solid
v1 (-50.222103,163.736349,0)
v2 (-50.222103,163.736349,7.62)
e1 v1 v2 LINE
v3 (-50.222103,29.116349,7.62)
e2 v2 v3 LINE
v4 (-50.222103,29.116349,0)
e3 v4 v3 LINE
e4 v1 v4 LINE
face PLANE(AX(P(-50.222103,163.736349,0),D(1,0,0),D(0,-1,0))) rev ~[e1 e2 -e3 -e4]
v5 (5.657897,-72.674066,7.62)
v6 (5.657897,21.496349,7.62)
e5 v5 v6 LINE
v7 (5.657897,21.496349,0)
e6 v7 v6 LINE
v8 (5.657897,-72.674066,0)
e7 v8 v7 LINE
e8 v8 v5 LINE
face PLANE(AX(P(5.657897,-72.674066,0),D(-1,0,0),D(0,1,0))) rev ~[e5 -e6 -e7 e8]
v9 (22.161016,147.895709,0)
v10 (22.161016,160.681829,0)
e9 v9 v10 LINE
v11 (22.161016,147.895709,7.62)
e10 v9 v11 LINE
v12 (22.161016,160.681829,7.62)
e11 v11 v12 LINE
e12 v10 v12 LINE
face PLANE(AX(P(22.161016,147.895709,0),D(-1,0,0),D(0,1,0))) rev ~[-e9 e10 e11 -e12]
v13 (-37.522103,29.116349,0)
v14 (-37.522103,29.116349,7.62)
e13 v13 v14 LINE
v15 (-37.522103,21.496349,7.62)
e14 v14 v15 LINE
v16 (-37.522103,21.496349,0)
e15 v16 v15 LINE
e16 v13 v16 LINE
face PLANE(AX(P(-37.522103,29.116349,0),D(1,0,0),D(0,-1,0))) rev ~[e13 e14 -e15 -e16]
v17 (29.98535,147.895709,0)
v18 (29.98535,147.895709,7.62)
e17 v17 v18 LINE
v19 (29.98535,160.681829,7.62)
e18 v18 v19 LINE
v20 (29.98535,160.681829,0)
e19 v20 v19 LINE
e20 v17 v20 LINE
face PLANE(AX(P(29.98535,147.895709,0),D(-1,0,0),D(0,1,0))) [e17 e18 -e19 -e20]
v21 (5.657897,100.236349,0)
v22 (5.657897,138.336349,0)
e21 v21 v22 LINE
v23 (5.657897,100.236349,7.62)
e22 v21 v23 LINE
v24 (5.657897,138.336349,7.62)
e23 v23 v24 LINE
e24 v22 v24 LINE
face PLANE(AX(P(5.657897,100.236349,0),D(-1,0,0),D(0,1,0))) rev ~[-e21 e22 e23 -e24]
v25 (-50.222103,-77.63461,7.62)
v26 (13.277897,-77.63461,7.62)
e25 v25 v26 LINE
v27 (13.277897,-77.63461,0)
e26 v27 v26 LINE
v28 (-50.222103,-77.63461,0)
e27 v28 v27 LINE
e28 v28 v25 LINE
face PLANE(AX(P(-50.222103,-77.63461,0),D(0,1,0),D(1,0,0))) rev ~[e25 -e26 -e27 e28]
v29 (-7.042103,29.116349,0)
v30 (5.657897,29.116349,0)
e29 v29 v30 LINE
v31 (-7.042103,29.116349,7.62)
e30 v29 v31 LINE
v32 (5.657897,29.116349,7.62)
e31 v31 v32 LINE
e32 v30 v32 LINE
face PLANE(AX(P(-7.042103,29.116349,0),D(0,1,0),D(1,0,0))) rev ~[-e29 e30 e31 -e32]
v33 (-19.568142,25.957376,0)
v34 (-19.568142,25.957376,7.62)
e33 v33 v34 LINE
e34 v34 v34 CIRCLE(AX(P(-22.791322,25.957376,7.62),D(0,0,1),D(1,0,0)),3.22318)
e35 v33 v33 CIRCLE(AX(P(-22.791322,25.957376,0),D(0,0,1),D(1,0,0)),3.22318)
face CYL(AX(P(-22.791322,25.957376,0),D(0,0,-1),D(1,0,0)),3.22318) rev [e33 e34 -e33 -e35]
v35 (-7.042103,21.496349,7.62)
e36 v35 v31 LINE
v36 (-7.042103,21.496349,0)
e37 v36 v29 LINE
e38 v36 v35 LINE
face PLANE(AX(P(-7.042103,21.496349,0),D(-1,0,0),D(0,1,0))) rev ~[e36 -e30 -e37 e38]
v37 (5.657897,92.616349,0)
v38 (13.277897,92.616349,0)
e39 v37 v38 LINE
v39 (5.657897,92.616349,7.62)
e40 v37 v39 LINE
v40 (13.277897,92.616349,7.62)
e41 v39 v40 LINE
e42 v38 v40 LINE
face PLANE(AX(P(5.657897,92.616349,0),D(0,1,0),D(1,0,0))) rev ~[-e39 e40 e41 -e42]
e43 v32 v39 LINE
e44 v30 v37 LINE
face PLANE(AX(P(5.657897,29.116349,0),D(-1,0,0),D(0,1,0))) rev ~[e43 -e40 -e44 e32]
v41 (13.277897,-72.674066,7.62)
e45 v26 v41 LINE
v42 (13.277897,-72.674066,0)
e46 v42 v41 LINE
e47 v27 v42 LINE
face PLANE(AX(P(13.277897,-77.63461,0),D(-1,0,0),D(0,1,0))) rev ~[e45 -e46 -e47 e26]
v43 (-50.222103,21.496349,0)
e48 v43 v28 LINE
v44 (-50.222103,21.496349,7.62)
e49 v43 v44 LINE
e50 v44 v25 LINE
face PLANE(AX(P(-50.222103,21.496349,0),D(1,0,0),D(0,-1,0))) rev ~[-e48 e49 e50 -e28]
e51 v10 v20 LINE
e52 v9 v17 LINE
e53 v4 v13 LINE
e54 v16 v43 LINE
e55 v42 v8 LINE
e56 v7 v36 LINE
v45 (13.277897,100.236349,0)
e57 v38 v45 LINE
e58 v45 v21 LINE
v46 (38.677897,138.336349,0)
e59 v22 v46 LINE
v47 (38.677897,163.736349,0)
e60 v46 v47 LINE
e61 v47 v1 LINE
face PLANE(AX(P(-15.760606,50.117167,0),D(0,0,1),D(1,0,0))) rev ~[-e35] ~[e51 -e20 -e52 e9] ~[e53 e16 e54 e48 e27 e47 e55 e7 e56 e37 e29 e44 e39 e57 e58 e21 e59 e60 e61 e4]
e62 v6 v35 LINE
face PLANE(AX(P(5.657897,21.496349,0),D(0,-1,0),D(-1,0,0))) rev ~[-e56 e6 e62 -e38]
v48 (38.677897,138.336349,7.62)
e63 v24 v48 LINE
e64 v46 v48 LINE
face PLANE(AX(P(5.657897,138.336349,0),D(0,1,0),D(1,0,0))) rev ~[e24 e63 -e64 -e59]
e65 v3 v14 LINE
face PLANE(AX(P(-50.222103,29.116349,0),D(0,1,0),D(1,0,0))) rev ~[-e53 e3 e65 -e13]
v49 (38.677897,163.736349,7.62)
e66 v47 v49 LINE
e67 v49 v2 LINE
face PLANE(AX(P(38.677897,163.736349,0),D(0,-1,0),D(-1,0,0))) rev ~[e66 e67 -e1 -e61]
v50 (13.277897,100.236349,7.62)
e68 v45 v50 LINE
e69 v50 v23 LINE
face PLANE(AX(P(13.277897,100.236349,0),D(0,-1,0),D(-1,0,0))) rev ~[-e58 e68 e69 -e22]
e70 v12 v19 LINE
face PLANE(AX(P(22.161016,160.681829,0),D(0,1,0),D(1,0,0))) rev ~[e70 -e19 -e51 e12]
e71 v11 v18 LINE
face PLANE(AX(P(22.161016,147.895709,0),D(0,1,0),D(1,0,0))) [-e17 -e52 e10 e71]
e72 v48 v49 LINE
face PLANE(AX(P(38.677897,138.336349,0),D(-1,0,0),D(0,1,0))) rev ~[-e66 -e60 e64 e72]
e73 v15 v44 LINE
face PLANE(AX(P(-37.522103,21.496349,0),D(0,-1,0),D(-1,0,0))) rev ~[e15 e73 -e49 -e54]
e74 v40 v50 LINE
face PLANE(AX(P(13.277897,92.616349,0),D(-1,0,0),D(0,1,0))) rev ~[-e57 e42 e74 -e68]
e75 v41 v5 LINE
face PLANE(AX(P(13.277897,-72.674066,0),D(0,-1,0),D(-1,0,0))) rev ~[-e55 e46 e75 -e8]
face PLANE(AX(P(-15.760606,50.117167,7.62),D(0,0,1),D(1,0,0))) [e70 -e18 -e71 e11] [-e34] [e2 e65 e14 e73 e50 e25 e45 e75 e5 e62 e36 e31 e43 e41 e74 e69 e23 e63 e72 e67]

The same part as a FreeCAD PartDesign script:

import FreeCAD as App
import Part
import Sketcher
from FreeCAD import Vector
Q = App.Units.Quantity

doc = App.newDocument("Part")
params = doc.addObject("Spreadsheet::Sheet", "Params")
for row, (alias, value) in enumerate([
    ("sketch1_height", "1 in"),
    ("sketch1_width", "3.5 in"),
    ("sketch1_width2", "0.5 in"),
    ("sketch1_width3", "2.5 in"),
    ("sketch1_width4", "0.3 in"),
    ("pad1_length", "0.3 in"),
], start=1):
    params.set(f"A{row}", alias)
    params.set(f"B{row}", "=" + value)
    params.setAlias(f"B{row}", alias)

body = doc.addObject("PartDesign::Body", "Body")

sketch1 = doc.addObject("Sketcher::SketchObject", "Sketch")
body.addObject(sketch1)
sketch1.AttachmentSupport = (doc.XY_Plane, [""])
sketch1.MapMode = "FlatFace"
sketch1.addGeometry([
    Part.LineSegment(Vector(38.677897, 163.736349, 0), Vector(-50.222103, 163.736349, 0)),
    Part.LineSegment(Vector(-50.222103, 163.736349, 0), Vector(-50.222103, 29.116349, 0)),
    Part.LineSegment(Vector(-50.222103, 29.116349, 0), Vector(-37.522103, 29.116349, 0)),
    Part.LineSegment(Vector(-37.522103, 29.116349, 0), Vector(-37.522103, 21.496349, 0)),
    Part.LineSegment(Vector(-37.522103, 21.496349, 0), Vector(-50.222103, 21.496349, 0)),
    Part.LineSegment(Vector(-50.222103, 21.496349, 0), Vector(-50.222103, -77.63461, 0)),
    Part.LineSegment(Vector(-50.222103, -77.63461, 0), Vector(13.277897, -77.63461, 0)),
    Part.LineSegment(Vector(13.277897, -77.63461, 0), Vector(13.277897, -72.674066, 0)),
    Part.LineSegment(Vector(13.277897, -72.674066, 0), Vector(5.657897, -72.674066, 0)),
    Part.LineSegment(Vector(5.657897, -72.674066, 0), Vector(5.657897, 21.496349, 0)),
    Part.LineSegment(Vector(5.657897, 21.496349, 0), Vector(-7.042103, 21.496349, 0)),
    Part.LineSegment(Vector(-7.042103, 21.496349, 0), Vector(-7.042103, 29.116349, 0)),
    Part.LineSegment(Vector(-7.042103, 29.116349, 0), Vector(5.657897, 29.116349, 0)),
    Part.LineSegment(Vector(5.657897, 29.116349, 0), Vector(5.657897, 92.616349, 0)),
    Part.LineSegment(Vector(5.657897, 92.616349, 0), Vector(13.277897, 92.616349, 0)),
    Part.LineSegment(Vector(13.277897, 92.616349, 0), Vector(13.277897, 100.236349, 0)),
    Part.LineSegment(Vector(13.277897, 100.236349, 0), Vector(5.657897, 100.236349, 0)),
    Part.LineSegment(Vector(5.657897, 100.236349, 0), Vector(5.657897, 138.336349, 0)),
    Part.LineSegment(Vector(5.657897, 138.336349, 0), Vector(38.677897, 138.336349, 0)),
    Part.LineSegment(Vector(38.677897, 138.336349, 0), Vector(38.677897, 163.736349, 0)),
    Part.Circle(Vector(-22.791322, 25.957376, 0), Vector(0, 0, 1), 3.22318),
    Part.LineSegment(Vector(29.98535, 147.895709, 0), Vector(22.161016, 147.895709, 0)),
    Part.LineSegment(Vector(22.161016, 147.895709, 0), Vector(22.161016, 160.681829, 0)),
    Part.LineSegment(Vector(22.161016, 160.681829, 0), Vector(29.98535, 160.681829, 0)),
    Part.LineSegment(Vector(29.98535, 160.681829, 0), Vector(29.98535, 147.895709, 0)),
], False)
sketch1.addConstraint([
    Sketcher.Constraint("Coincident", 0, 2, 1, 1),
    Sketcher.Constraint("Coincident", 1, 2, 2, 1),
    Sketcher.Constraint("Coincident", 2, 2, 3, 1),
    Sketcher.Constraint("Coincident", 3, 2, 4, 1),
    Sketcher.Constraint("Coincident", 4, 2, 5, 1),
    Sketcher.Constraint("Coincident", 5, 2, 6, 1),
    Sketcher.Constraint("Coincident", 6, 2, 7, 1),
    Sketcher.Constraint("Coincident", 7, 2, 8, 1),
    Sketcher.Constraint("Coincident", 8, 2, 9, 1),
    Sketcher.Constraint("Coincident", 9, 2, 10, 1),
    Sketcher.Constraint("Coincident", 10, 2, 11, 1),
    Sketcher.Constraint("Coincident", 11, 2, 12, 1),
    Sketcher.Constraint("Coincident", 12, 2, 13, 1),
    Sketcher.Constraint("Coincident", 13, 2, 14, 1),
    Sketcher.Constraint("Coincident", 14, 2, 15, 1),
    Sketcher.Constraint("Coincident", 15, 2, 16, 1),
    Sketcher.Constraint("Coincident", 16, 2, 17, 1),
    Sketcher.Constraint("Coincident", 17, 2, 18, 1),
    Sketcher.Constraint("Coincident", 18, 2, 19, 1),
    Sketcher.Constraint("Coincident", 19, 2, 0, 1),
    Sketcher.Constraint("Coincident", 21, 2, 22, 1),
    Sketcher.Constraint("Coincident", 22, 2, 23, 1),
    Sketcher.Constraint("Coincident", 23, 2, 24, 1),
    Sketcher.Constraint("Coincident", 24, 2, 21, 1),
    Sketcher.Constraint("Horizontal", 0),
    Sketcher.Constraint("Vertical", 1),
    Sketcher.Constraint("Horizontal", 2),
    Sketcher.Constraint("Vertical", 3),
    Sketcher.Constraint("Horizontal", 4),
    Sketcher.Constraint("Vertical", 5),
    Sketcher.Constraint("Horizontal", 6),
    Sketcher.Constraint("Vertical", 7),
    Sketcher.Constraint("Horizontal", 8),
    Sketcher.Constraint("Vertical", 9),
    Sketcher.Constraint("Horizontal", 10),
    Sketcher.Constraint("Vertical", 11),
    Sketcher.Constraint("Horizontal", 12),
    Sketcher.Constraint("Vertical", 13),
    Sketcher.Constraint("Horizontal", 14),
    Sketcher.Constraint("Vertical", 15),
    Sketcher.Constraint("Horizontal", 16),
    Sketcher.Constraint("Vertical", 17),
    Sketcher.Constraint("Horizontal", 18),
    Sketcher.Constraint("Vertical", 19),
    Sketcher.Constraint("Horizontal", 21),
    Sketcher.Constraint("Vertical", 22),
    Sketcher.Constraint("Horizontal", 23),
    Sketcher.Constraint("Vertical", 24),
    Sketcher.Constraint("Horizontal", 4, 2, 9, 2),
    Sketcher.Constraint("Horizontal", 2, 2, 11, 2),
    Sketcher.Constraint("Vertical", 1, 2, 4, 2),
    Sketcher.Constraint("Vertical", 9, 2, 12, 2),
    Sketcher.Constraint("Vertical", 7, 2, 14, 2),
    Sketcher.Constraint("Vertical", 13, 2, 16, 2),
    Sketcher.Constraint("Equal", 4, 10),
    Sketcher.Constraint("Equal", 16, 3),
    Sketcher.Constraint("Equal", 6, 13),
    Sketcher.Constraint("Equal", 11, 15),
    Sketcher.Constraint("DistanceY", 19, 1, 19, 2, Q("1 in")),
    Sketcher.Constraint("DistanceX", 0, 2, 0, 1, Q("3.5 in")),
    Sketcher.Constraint("DistanceX", 2, 1, 2, 2, Q("0.5 in")),
    Sketcher.Constraint("DistanceX", 6, 1, 6, 2, Q("2.5 in")),
    Sketcher.Constraint("DistanceX", 8, 2, 8, 1, Q("0.3 in")),
    Sketcher.Constraint("DistanceY", 1, 2, 1, 1, Q("5.3 in")),
    Sketcher.Constraint("Diameter", 20, 6.44636),
    Sketcher.Constraint("DistanceY", 5, 2, 5, 1, 99.130959),
    Sketcher.Constraint("DistanceY", 22, 1, 22, 2, 12.78612),
    Sketcher.Constraint("DistanceX", 21, 2, 21, 1, 7.824334),
    Sketcher.Constraint("DistanceY", 7, 1, 7, 2, 4.960544),
    Sketcher.Constraint("DistanceY", -1, 1, 0, 2, 163.736349),
    Sketcher.Constraint("DistanceY", -1, 1, 21, 2, 147.895709),
    Sketcher.Constraint("DistanceX", -1, 1, 23, 2, 29.98535),
    Sketcher.Constraint("DistanceX", 0, 2, 20, 3, 27.430781),
    Sketcher.Constraint("DistanceY", 7, 2, 20, 3, 98.631442),
    Sketcher.Constraint("DistanceX", 17, 2, 21, 2, 16.503119),
])
sketch1.setExpression("Constraints[58]", "Params.sketch1_height")
sketch1.setExpression("Constraints[59]", "Params.sketch1_width")
sketch1.setExpression("Constraints[60]", "Params.sketch1_width2")
sketch1.setExpression("Constraints[61]", "Params.sketch1_width3")
sketch1.setExpression("Constraints[62]", "Params.sketch1_width4")
pad1 = doc.addObject("PartDesign::Pad", "Pad")
body.addObject(pad1)
pad1.Profile = sketch1
pad1.setExpression("Length", "Params.pad1_length")

doc.recompute()
